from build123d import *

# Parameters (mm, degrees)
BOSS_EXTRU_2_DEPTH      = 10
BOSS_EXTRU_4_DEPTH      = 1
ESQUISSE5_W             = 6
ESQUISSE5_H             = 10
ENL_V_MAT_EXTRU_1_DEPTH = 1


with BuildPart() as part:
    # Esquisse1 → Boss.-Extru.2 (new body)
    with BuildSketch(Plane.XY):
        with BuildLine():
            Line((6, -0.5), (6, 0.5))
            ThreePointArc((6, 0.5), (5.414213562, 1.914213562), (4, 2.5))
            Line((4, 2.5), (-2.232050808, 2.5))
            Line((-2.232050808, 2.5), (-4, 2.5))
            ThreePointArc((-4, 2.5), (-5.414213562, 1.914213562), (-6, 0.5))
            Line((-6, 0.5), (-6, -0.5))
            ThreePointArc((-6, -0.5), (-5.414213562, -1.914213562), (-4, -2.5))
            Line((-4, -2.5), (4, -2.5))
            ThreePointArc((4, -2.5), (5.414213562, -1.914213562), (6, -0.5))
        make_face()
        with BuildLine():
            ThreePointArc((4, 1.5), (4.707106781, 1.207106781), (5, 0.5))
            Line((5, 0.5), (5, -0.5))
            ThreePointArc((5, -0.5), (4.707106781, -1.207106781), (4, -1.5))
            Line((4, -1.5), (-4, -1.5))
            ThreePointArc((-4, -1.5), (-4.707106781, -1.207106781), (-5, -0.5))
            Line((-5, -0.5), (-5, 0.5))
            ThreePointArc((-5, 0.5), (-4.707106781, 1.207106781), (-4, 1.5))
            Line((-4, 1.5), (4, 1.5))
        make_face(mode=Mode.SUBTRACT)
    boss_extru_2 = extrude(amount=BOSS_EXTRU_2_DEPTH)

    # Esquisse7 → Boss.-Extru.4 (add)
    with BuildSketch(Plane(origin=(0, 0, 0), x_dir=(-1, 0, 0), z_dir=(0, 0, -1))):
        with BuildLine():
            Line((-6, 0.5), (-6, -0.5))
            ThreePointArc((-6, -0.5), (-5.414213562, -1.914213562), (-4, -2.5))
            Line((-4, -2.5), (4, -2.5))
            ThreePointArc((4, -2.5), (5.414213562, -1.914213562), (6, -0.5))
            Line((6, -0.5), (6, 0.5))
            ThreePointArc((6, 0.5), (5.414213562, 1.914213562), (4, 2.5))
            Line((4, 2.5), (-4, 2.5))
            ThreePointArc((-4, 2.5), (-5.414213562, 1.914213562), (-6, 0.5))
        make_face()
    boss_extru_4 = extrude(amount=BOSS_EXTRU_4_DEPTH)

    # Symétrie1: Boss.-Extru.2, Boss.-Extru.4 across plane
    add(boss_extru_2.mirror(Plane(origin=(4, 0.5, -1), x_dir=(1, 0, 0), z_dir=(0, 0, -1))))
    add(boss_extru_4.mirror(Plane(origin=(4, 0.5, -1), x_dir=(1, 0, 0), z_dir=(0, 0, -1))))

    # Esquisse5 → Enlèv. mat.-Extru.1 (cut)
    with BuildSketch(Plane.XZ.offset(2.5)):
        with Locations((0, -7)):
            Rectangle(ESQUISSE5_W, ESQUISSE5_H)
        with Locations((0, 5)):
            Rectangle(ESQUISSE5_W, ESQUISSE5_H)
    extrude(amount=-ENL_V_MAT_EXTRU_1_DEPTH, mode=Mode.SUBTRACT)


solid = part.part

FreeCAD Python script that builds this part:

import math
import FreeCAD as App
import Part
import Sketcher

V = App.Vector


def add_polygon(sketch, points):
    """Adds a closed chain of lines whose ends are joined by coincident constraints."""
    first, n = sketch.GeometryCount, len(points)
    for a, b in zip(points, points[1:] + points[:1]):
        sketch.addGeometry(Part.LineSegment(App.Vector(*a, 0), App.Vector(*b, 0)), False)
    for i in range(n):
        sketch.addConstraint(Sketcher.Constraint("Coincident", first + i, 2, first + (i + 1) % n, 1))

doc = App.newDocument("Part")
params = doc.addObject("Spreadsheet::Sheet", "Params")
for row, (alias, value) in enumerate([
    ("sketch1_radius", "2 mm"),
    ("sketch1_radius2", "1 mm"),
    ("sketch1_width", "8 mm"),
    ("sketch1_height", "1 mm"),
    ("pad1_length", "10 mm"),
    ("sketch2_radius", "2 mm"),
    ("sketch2_width", "8 mm"),
    ("sketch2_height", "1 mm"),
    ("pad2_length", "1 mm"),
    ("sketch3_width", "6 mm"),
    ("sketch3_height", "10 mm"),
    ("pocket1_length", "1 mm"),
], start=1):
    params.set(f"A{row}", alias)
    params.set(f"B{row}", "=" + value)
    params.setAlias(f"B{row}", alias)

body = doc.addObject("PartDesign::Body", "Body")

# Sketch on XY plane
sketch1 = body.newObject("Sketcher::SketchObject", "Sketch")
sketch1.AttachmentSupport = (doc.getObject("XY_Plane"), [""])
sketch1.MapMode = "FlatFace"
sketch1.addGeometry([
    Part.LineSegment(V(6, -0.5, 0), V(6, 0.5, 0)),  # 0
    Part.ArcOfCircle(Part.Circle(V(4, 0.5, 0), V(0, 0, 1), 2), math.radians(0), math.radians(90)),  # 1
    Part.LineSegment(V(4, 2.5, 0), V(-4, 2.5, 0)),  # 2
    Part.ArcOfCircle(Part.Circle(V(-4, 0.5, 0), V(0, 0, 1), 2), math.radians(90), math.radians(180)),  # 3
    Part.LineSegment(V(-6, 0.5, 0), V(-6, -0.5, 0)),  # 4
    Part.ArcOfCircle(Part.Circle(V(-4, -0.5, 0), V(0, 0, 1), 2), math.radians(-180), math.radians(-90)),  # 5
    Part.LineSegment(V(-4, -2.5, 0), V(4, -2.5, 0)),  # 6
    Part.ArcOfCircle(Part.Circle(V(4, -0.5, 0), V(0, 0, 1), 2), math.radians(-90), math.radians(0)),  # 7
    Part.LineSegment(V(-4, 1.5, 0), V(4, 1.5, 0)),  # 8
    Part.ArcOfCircle(Part.Circle(V(4, 0.5, 0), V(0, 0, 1), 1), math.radians(0), math.radians(90)),  # 9
    Part.LineSegment(V(5, 0.5, 0), V(5, -0.5, 0)),  # 10
    Part.ArcOfCircle(Part.Circle(V(4, -0.5, 0), V(0, 0, 1), 1), math.radians(-90), math.radians(0)),  # 11
    Part.LineSegment(V(4, -1.5, 0), V(-4, -1.5, 0)),  # 12
    Part.ArcOfCircle(Part.Circle(V(-4, -0.5, 0), V(0, 0, 1), 1), math.radians(-180), math.radians(-90)),  # 13
    Part.LineSegment(V(-5, -0.5, 0), V(-5, 0.5, 0)),  # 14
    Part.ArcOfCircle(Part.Circle(V(-4, 0.5, 0), V(0, 0, 1), 1), math.radians(90), math.radians(180)),  # 15
], False)
sketch1.addConstraint([
    Sketcher.Constraint("Tangent", 0, 2, 1, 1),
    Sketcher.Constraint("Tangent", 1, 2, 2, 1),
    Sketcher.Constraint("Tangent", 2, 2, 3, 1),
    Sketcher.Constraint("Tangent", 3, 2, 4, 1),
    Sketcher.Constraint("Tangent", 4, 2, 5, 1),
    Sketcher.Constraint("Tangent", 5, 2, 6, 1),
    Sketcher.Constraint("Tangent", 6, 2, 7, 1),
    Sketcher.Constraint("Tangent", 7, 2, 0, 1),
    Sketcher.Constraint("Tangent", 8, 2, 9, 2),
    Sketcher.Constraint("Tangent", 9, 1, 10, 1),
    Sketcher.Constraint("Tangent", 10, 2, 11, 2),
    Sketcher.Constraint("Tangent", 11, 1, 12, 1),
    Sketcher.Constraint("Tangent", 12, 2, 13, 2),
    Sketcher.Constraint("Tangent", 13, 1, 14, 1),
    Sketcher.Constraint("Tangent", 14, 2, 15, 2),
    Sketcher.Constraint("Tangent", 15, 1, 8, 1),
    Sketcher.Constraint("Vertical", 0),
    Sketcher.Constraint("Horizontal", 2),
    Sketcher.Constraint("Vertical", 4),
    Sketcher.Constraint("Horizontal", 6),
    Sketcher.Constraint("Horizontal", 8),
    Sketcher.Constraint("Vertical", 10),
    Sketcher.Constraint("Horizontal", 12),
    Sketcher.Constraint("Vertical", 14),
    Sketcher.Constraint("Coincident", 9, 3, 1, 3),
    Sketcher.Constraint("Coincident", 11, 3, 7, 3),
    Sketcher.Constraint("Coincident", 13, 3, 5, 3),
    Sketcher.Constraint("Equal", 1, 3),
    Sketcher.Constraint("Equal", 3, 5),
    Sketcher.Constraint("Equal", 5, 7),
    Sketcher.Constraint("Equal", 13, 15),
    Sketcher.Constraint("Symmetric", 1, 3, 5, 3, -1, 1),
    Sketcher.Constraint("Radius", 1, 2.0),
    Sketcher.Constraint("Radius", 9, 1.0),
    Sketcher.Constraint("DistanceX", 2, 2, 2, 1, 8.0),
    Sketcher.Constraint("DistanceY", 0, 1, 0, 2, 1.0),
])
sketch1.setExpression("Constraints[32]", "Params.sketch1_radius")
sketch1.setExpression("Constraints[33]", "Params.sketch1_radius2")
sketch1.setExpression("Constraints[34]", "Params.sketch1_width")
sketch1.setExpression("Constraints[35]", "Params.sketch1_height")
pad1 = body.newObject("PartDesign::Pad", "Pad")
pad1.Profile = sketch1
pad1.setExpression("Length", "Params.pad1_length")

# Sketch on XY plane
sketch2 = body.newObject("Sketcher::SketchObject", "Sketch001")
sketch2.AttachmentSupport = (doc.getObject("XY_Plane"), [""])
sketch2.MapMode = "FlatFace"
sketch2.addGeometry([
    Part.LineSegment(V(6, 0.5, 0), V(6, -0.5, 0)),  # 0
    Part.ArcOfCircle(Part.Circle(V(4, -0.5, 0), V(0, 0, 1), 2), math.radians(-90), math.radians(0)),  # 1
    Part.LineSegment(V(4, -2.5, 0), V(-4, -2.5, 0)),  # 2
    Part.ArcOfCircle(Part.Circle(V(-4, -0.5, 0), V(0, 0, 1), 2), math.radians(-180), math.radians(-90)),  # 3
    Part.LineSegment(V(-6, -0.5, 0), V(-6, 0.5, 0)),  # 4
    Part.ArcOfCircle(Part.Circle(V(-4, 0.5, 0), V(0, 0, 1), 2), math.radians(90), math.radians(180)),  # 5
    Part.LineSegment(V(-4, 2.5, 0), V(4, 2.5, 0)),  # 6
    Part.ArcOfCircle(Part.Circle(V(4, 0.5, 0), V(0, 0, 1), 2), math.radians(0), math.radians(90)),  # 7
], False)
sketch2.addConstraint([
    Sketcher.Constraint("Tangent", 0, 2, 1, 2),
    Sketcher.Constraint("Tangent", 1, 1, 2, 1),
    Sketcher.Constraint("Tangent", 2, 2, 3, 2),
    Sketcher.Constraint("Tangent", 3, 1, 4, 1),
    Sketcher.Constraint("Tangent", 4, 2, 5, 2),
    Sketcher.Constraint("Tangent", 5, 1, 6, 1),
    Sketcher.Constraint("Tangent", 6, 2, 7, 2),
    Sketcher.Constraint("Tangent", 7, 1, 0, 1),
    Sketcher.Constraint("Vertical", 0),
    Sketcher.Constraint("Horizontal", 2),
    Sketcher.Constraint("Vertical", 4),
    Sketcher.Constraint("Horizontal", 6),
    Sketcher.Constraint("Equal", 1, 3),
    Sketcher.Constraint("Equal", 3, 5),
    Sketcher.Constraint("Equal", 5, 7),
    Sketcher.Constraint("Symmetric", 1, 3, 5, 3, -1, 1),
    Sketcher.Constraint("Radius", 1, 2.0),
    Sketcher.Constraint("DistanceX", 2, 2, 2, 1, 8.0),
    Sketcher.Constraint("DistanceY", 0, 2, 0, 1, 1.0),
])
sketch2.setExpression("Constraints[16]", "Params.sketch2_radius")
sketch2.setExpression("Constraints[17]", "Params.sketch2_width")
sketch2.setExpression("Constraints[18]", "Params.sketch2_height")
pad2 = body.newObject("PartDesign::Pad", "Pad001")
pad2.Profile = sketch2
pad2.setExpression("Length", "Params.pad2_length")
pad2.Reversed = True
doc.recompute()

datumplane = body.newObject("PartDesign::Plane", "DatumPlane")
datumplane.AttachmentSupport = (doc.getObject("XY_Plane"), [""])
datumplane.MapMode = "FlatFace"
datumplane.AttachmentOffset = App.Placement(V(0, 0, -1), App.Rotation())
mirrored = body.newObject("PartDesign::Mirrored", "Mirrored")
mirrored.Originals = [pad1, pad2]
mirrored.MirrorPlane = (datumplane, [""])
body.Tip = mirrored

# Sketch on XZ plane
sketch3 = body.newObject("Sketcher::SketchObject", "Sketch002")
sketch3.AttachmentSupport = (doc.getObject("XZ_Plane"), [""])
sketch3.MapMode = "FlatFace"
sketch3.AttachmentOffset = App.Placement(V(0, 0, 2.5), App.Rotation())
add_polygon(sketch3, [(-3, -2), (-3, -12), (3, -12), (3, -2)])  # lines 0-3
add_polygon(sketch3, [(-3, 10), (-3, 0), (3, 0), (3, 10)])  # lines 4-7
sketch3.addConstraint([
    Sketcher.Constraint("Vertical", 0),
    Sketcher.Constraint("Horizontal", 1),
    Sketcher.Constraint("Vertical", 2),
    Sketcher.Constraint("Horizontal", 3),
    Sketcher.Constraint("Vertical", 4),
    Sketcher.Constraint("Horizontal", 5),
    Sketcher.Constraint("Vertical", 6),
    Sketcher.Constraint("Horizontal", 7),
    Sketcher.Constraint("Symmetric", 4, 2, 5, 2, -1, 1),
    Sketcher.Constraint("Vertical", 3, 2, 4, 2),
    Sketcher.Constraint("Vertical", 2, 2, 5, 2),
    Sketcher.Constraint("Equal", 2, 4),
    Sketcher.Constraint("DistanceX", 1, 1, 1, 2, 6.0),
    Sketcher.Constraint("DistanceY", 0, 2, 0, 1, 10.0),
    Sketcher.Constraint("DistanceY", 0, 2, -1, 1, 12.0),
])
sketch3.setExpression("Constraints[20]", "Params.sketch3_width")
sketch3.setExpression("Constraints[21]", "Params.sketch3_height")
pocket1 = body.newObject("PartDesign::Pocket", "Pocket")
pocket1.Profile = sketch3
pocket1.setExpression("Length", "Params.pocket1_length")

doc.recompute()
